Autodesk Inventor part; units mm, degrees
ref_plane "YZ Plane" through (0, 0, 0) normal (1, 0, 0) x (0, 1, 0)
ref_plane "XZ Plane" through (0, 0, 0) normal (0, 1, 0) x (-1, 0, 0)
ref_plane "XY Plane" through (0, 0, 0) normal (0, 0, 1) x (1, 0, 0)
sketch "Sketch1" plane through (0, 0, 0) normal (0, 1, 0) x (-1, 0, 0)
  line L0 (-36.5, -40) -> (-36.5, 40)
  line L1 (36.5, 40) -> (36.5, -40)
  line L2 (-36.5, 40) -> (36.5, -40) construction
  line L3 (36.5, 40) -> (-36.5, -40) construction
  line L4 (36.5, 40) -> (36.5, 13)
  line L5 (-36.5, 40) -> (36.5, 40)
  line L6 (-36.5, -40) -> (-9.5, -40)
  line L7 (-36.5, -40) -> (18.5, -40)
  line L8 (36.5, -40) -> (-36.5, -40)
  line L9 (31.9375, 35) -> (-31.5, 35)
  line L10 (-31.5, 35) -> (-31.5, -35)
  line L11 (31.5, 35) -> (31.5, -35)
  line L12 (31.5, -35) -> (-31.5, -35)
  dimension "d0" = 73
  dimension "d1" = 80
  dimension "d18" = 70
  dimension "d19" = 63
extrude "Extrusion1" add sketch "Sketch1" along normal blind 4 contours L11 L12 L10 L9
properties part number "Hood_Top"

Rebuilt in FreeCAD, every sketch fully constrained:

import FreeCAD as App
import Part
import Sketcher

doc = App.newDocument("Part")
body = doc.addObject("PartDesign::Body", "Body")

# Sketch on XZ plane
sketch1 = body.newObject("Sketcher::SketchObject", "Sketch")
sketch1.AttachmentSupport = (doc.getObject("XZ_Plane"), [""])
sketch1.MapMode = "FlatFace"
sketch1.addGeometry(Part.LineSegment(App.Vector(-32, -35, 0), App.Vector(-32, 35, 0)), False)
sketch1.addGeometry(Part.LineSegment(App.Vector(-32, 35, 0), App.Vector(32, 35, 0)), False)
sketch1.addGeometry(Part.LineSegment(App.Vector(32, 35, 0), App.Vector(32, -35, 0)), False)
sketch1.addGeometry(Part.LineSegment(App.Vector(32, -35, 0), App.Vector(-32, -35, 0)), False)
sketch1.addConstraint(Sketcher.Constraint("Coincident", 0, 2, 1, 1))
sketch1.addConstraint(Sketcher.Constraint("Coincident", 1, 2, 2, 1))
sketch1.addConstraint(Sketcher.Constraint("Coincident", 2, 2, 3, 1))
sketch1.addConstraint(Sketcher.Constraint("Coincident", 3, 2, 0, 1))
sketch1.addConstraint(Sketcher.Constraint("Vertical", 0))
sketch1.addConstraint(Sketcher.Constraint("Horizontal", 1))
sketch1.addConstraint(Sketcher.Constraint("Vertical", 2))
sketch1.addConstraint(Sketcher.Constraint("Horizontal", 3))
sketch1.addConstraint(Sketcher.Constraint("Symmetric", 0, 2, 2, 2, -1, 1))
sketch1.addConstraint(Sketcher.Constraint("DistanceX", 1, 1, 1, 2, 63.0))
sketch1.addConstraint(Sketcher.Constraint("DistanceY", 0, 1, 0, 2, 70.0))
pad1 = body.newObject("PartDesign::Pad", "Pad")
pad1.Profile = sketch1
pad1.Length = 4
pad1.Reversed = True

doc.recompute()
